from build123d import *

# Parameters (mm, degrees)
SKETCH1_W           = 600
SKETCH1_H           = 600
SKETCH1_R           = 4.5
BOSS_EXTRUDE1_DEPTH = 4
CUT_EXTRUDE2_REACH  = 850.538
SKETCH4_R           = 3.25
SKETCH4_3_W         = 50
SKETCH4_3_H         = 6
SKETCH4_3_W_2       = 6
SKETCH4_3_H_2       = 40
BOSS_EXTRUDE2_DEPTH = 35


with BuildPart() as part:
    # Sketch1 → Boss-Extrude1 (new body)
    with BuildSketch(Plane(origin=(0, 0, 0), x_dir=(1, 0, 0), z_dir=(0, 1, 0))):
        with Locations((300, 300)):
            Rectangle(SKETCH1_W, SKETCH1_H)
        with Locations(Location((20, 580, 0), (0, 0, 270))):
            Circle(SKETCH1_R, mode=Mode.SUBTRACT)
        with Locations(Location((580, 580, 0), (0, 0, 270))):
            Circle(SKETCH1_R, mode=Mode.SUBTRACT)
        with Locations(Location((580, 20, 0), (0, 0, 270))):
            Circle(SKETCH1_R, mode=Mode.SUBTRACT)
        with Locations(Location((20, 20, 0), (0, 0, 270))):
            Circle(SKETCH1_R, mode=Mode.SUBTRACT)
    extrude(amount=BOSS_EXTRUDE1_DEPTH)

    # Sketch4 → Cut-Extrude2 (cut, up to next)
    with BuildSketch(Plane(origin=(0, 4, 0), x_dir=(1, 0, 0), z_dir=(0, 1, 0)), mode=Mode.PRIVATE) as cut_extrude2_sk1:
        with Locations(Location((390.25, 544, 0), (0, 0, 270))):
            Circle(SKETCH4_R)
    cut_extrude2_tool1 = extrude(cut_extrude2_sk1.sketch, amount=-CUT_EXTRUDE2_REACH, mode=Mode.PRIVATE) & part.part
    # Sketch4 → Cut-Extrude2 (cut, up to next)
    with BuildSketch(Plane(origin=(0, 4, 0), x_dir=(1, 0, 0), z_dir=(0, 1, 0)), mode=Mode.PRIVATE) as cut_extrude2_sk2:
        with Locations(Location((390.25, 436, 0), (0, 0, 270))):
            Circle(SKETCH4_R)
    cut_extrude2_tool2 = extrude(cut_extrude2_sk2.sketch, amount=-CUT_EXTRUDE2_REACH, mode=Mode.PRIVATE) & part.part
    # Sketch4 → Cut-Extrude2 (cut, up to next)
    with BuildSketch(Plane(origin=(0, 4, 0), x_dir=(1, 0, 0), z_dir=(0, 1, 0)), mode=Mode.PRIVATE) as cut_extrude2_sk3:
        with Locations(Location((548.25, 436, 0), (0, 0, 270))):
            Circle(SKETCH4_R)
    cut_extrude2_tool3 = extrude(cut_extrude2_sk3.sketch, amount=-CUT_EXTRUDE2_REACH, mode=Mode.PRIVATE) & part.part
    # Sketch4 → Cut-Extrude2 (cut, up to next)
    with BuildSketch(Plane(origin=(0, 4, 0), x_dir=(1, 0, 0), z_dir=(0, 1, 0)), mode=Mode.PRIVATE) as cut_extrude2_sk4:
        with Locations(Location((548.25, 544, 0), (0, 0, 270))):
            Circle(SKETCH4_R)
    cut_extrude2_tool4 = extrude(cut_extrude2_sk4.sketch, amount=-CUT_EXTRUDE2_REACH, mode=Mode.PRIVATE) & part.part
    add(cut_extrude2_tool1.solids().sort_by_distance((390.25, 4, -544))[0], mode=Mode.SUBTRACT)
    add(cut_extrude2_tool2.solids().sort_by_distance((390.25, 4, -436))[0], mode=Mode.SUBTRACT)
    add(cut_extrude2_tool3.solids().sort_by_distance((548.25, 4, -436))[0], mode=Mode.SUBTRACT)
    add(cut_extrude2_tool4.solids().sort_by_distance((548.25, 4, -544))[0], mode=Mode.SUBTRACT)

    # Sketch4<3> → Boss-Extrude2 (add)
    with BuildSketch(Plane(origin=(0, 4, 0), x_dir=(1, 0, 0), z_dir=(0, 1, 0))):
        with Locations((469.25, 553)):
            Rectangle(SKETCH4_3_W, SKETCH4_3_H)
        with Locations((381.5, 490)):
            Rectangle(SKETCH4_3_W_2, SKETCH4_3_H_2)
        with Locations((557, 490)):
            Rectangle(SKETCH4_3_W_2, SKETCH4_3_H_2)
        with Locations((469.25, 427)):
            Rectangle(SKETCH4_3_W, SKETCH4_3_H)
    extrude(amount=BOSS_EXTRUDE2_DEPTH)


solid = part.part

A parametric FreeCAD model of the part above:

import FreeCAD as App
import Part
import Sketcher

V = App.Vector
Q = App.Units.Quantity

doc = App.newDocument("Part")
body = doc.addObject("PartDesign::Body", "Body")

sketch1 = body.newObject("Sketcher::SketchObject", "Sketch")
sketch1.AttachmentSupport = (doc.getObject("XZ_Plane"), [""])
sketch1.MapMode = "FlatFace"
sketch1.addGeometry([
    Part.LineSegment(V(0, -600, 0), V(0, 0, 0)),
    Part.LineSegment(V(0, 0, 0), V(600, 0, 0)),
    Part.LineSegment(V(600, 0, 0), V(600, -600, 0)),
    Part.LineSegment(V(600, -600, 0), V(0, -600, 0)),
    Part.Circle(V(20, -20, 0), V(0, 0, 1), 4.5),
    Part.Circle(V(580, -20, 0), V(0, 0, 1), 4.5),
    Part.Circle(V(20, -580, 0), V(0, 0, 1), 4.5),
    Part.Circle(V(580, -580, 0), V(0, 0, 1), 4.5),
], False)
sketch1.addConstraint([
    Sketcher.Constraint("Coincident", 0, 2, 1, 1),
    Sketcher.Constraint("Coincident", 1, 2, 2, 1),
    Sketcher.Constraint("Coincident", 2, 2, 3, 1),
    Sketcher.Constraint("Coincident", 3, 2, 0, 1),
    Sketcher.Constraint("Vertical", 0),
    Sketcher.Constraint("Horizontal", 1),
    Sketcher.Constraint("Vertical", 2),
    Sketcher.Constraint("Horizontal", 3),
    Sketcher.Constraint("Coincident", 0, 2, -1, 1),
    Sketcher.Constraint("Equal", 4, 5),
    Sketcher.Constraint("Equal", 5, 6),
    Sketcher.Constraint("Equal", 6, 7),
    Sketcher.Constraint("Horizontal", 4, 3, 5, 3),
    Sketcher.Constraint("Horizontal", 6, 3, 7, 3),
    Sketcher.Constraint("Vertical", 4, 3, 6, 3),
    Sketcher.Constraint("Vertical", 5, 3, 7, 3),
    Sketcher.Constraint("Equal", 3, 0),
    Sketcher.Constraint("Diameter", 4, Q("9 mm")),
    Sketcher.Constraint("DistanceX", 1, 1, 1, 2, Q("600 mm")),
    Sketcher.Constraint("DistanceX", -1, 1, 4, 3, Q("20 mm")),
    Sketcher.Constraint("DistanceY", 4, 3, -1, 1, Q("20 mm")),
    Sketcher.Constraint("DistanceX", -1, 1, 5, 3, Q("580 mm")),
    Sketcher.Constraint("DistanceY", 6, 3, -1, 1, Q("580 mm")),
])
pad1 = body.newObject("PartDesign::Pad", "Pad")
pad1.Profile = sketch1
pad1.Length = 4
pad1.Reversed = True

sketch2 = body.newObject("Sketcher::SketchObject", "Sketch001")
sketch2.AttachmentSupport = (doc.getObject("XZ_Plane"), [""])
sketch2.MapMode = "FlatFace"
sketch2.AttachmentOffset = App.Placement(V(0, 0, -4), App.Rotation())
sketch2.addGeometry(Part.Circle(V(390.25, -544, 0), V(0, 0, 1), 3.25), False)
sketch2.addConstraint([
    Sketcher.Constraint("Diameter", 0, Q("6.5 mm")),
    Sketcher.Constraint("DistanceY", 0, 3, -1, 1, Q("544 mm")),
    Sketcher.Constraint("DistanceX", -1, 1, 0, 3, Q("390.25 mm")),
])
pocket1 = body.newObject("PartDesign::Pocket", "Pocket")
pocket1.Profile = sketch2
pocket1.Type = "UpToFirst"
pocket1.Reversed = True

sketch3 = body.newObject("Sketcher::SketchObject", "Sketch002")
sketch3.AttachmentSupport = (doc.getObject("XZ_Plane"), [""])
sketch3.MapMode = "FlatFace"
sketch3.AttachmentOffset = App.Placement(V(0, 0, -4), App.Rotation())
sketch3.addGeometry(Part.Circle(V(390.25, -436, 0), V(0, 0, 1), 3.25), False)
sketch3.addConstraint([
    Sketcher.Constraint("Diameter", 0, Q("6.5 mm")),
    Sketcher.Constraint("DistanceY", 0, 3, -1, 1, Q("436 mm")),
    Sketcher.Constraint("DistanceX", -1, 1, 0, 3, Q("390.25 mm")),
])
pocket2 = body.newObject("PartDesign::Pocket", "Pocket001")
pocket2.Profile = sketch3
pocket2.Type = "UpToFirst"
pocket2.Reversed = True

sketch4 = body.newObject("Sketcher::SketchObject", "Sketch003")
sketch4.AttachmentSupport = (doc.getObject("XZ_Plane"), [""])
sketch4.MapMode = "FlatFace"
sketch4.AttachmentOffset = App.Placement(V(0, 0, -4), App.Rotation())
sketch4.addGeometry(Part.Circle(V(548.25, -436, 0), V(0, 0, 1), 3.25), False)
sketch4.addConstraint([
    Sketcher.Constraint("Diameter", 0, Q("6.5 mm")),
    Sketcher.Constraint("DistanceY", 0, 3, -1, 1, Q("436 mm")),
    Sketcher.Constraint("DistanceX", -1, 1, 0, 3, Q("548.25 mm")),
])
pocket3 = body.newObject("PartDesign::Pocket", "Pocket002")
pocket3.Profile = sketch4
pocket3.Type = "UpToFirst"
pocket3.Reversed = True

sketch5 = body.newObject("Sketcher::SketchObject", "Sketch004")
sketch5.AttachmentSupport = (doc.getObject("XZ_Plane"), [""])
sketch5.MapMode = "FlatFace"
sketch5.AttachmentOffset = App.Placement(V(0, 0, -4), App.Rotation())
sketch5.addGeometry(Part.Circle(V(548.25, -544, 0), V(0, 0, 1), 3.25), False)
sketch5.addConstraint([
    Sketcher.Constraint("Diameter", 0, Q("6.5 mm")),
    Sketcher.Constraint("DistanceY", 0, 3, -1, 1, Q("544 mm")),
    Sketcher.Constraint("DistanceX", -1, 1, 0, 3, Q("548.25 mm")),
])
pocket4 = body.newObject("PartDesign::Pocket", "Pocket003")
pocket4.Profile = sketch5
pocket4.Type = "UpToFirst"
pocket4.Reversed = True

sketch6 = body.newObject("Sketcher::SketchObject", "Sketch005")
sketch6.AttachmentSupport = (doc.getObject("XZ_Plane"), [""])
sketch6.MapMode = "FlatFace"
sketch6.AttachmentOffset = App.Placement(V(0, 0, -4), App.Rotation())
sketch6.addGeometry([
    Part.LineSegment(V(444.25, -556, 0), V(444.25, -550, 0)),
    Part.LineSegment(V(444.25, -550, 0), V(494.25, -550, 0)),
    Part.LineSegment(V(494.25, -550, 0), V(494.25, -556, 0)),
    Part.LineSegment(V(494.25, -556, 0), V(444.25, -556, 0)),
    Part.LineSegment(V(378.5, -510, 0), V(378.5, -470, 0)),
    Part.LineSegment(V(378.5, -470, 0), V(384.5, -470, 0)),
    Part.LineSegment(V(384.5, -470, 0), V(384.5, -510, 0)),
    Part.LineSegment(V(384.5, -510, 0), V(378.5, -510, 0)),
    Part.LineSegment(V(554, -510, 0), V(554, -470, 0)),
    Part.LineSegment(V(554, -470, 0), V(560, -470, 0)),
    Part.LineSegment(V(560, -470, 0), V(560, -510, 0)),
    Part.LineSegment(V(560, -510, 0), V(554, -510, 0)),
    Part.LineSegment(V(444.25, -430, 0), V(444.25, -424, 0)),
    Part.LineSegment(V(444.25, -424, 0), V(494.25, -424, 0)),
    Part.LineSegment(V(494.25, -424, 0), V(494.25, -430, 0)),
    Part.LineSegment(V(494.25, -430, 0), V(444.25, -430, 0)),
], False)
sketch6.addConstraint([
    Sketcher.Constraint("Coincident", 0, 2, 1, 1),
    Sketcher.Constraint("Coincident", 1, 2, 2, 1),
    Sketcher.Constraint("Coincident", 2, 2, 3, 1),
    Sketcher.Constraint("Coincident", 3, 2, 0, 1),
    Sketcher.Constraint("Coincident", 4, 2, 5, 1),
    Sketcher.Constraint("Coincident", 5, 2, 6, 1),
    Sketcher.Constraint("Coincident", 6, 2, 7, 1),
    Sketcher.Constraint("Coincident", 7, 2, 4, 1),
    Sketcher.Constraint("Coincident", 8, 2, 9, 1),
    Sketcher.Constraint("Coincident", 9, 2, 10, 1),
    Sketcher.Constraint("Coincident", 10, 2, 11, 1),
    Sketcher.Constraint("Coincident", 11, 2, 8, 1),
    Sketcher.Constraint("Coincident", 12, 2, 13, 1),
    Sketcher.Constraint("Coincident", 13, 2, 14, 1),
    Sketcher.Constraint("Coincident", 14, 2, 15, 1),
    Sketcher.Constraint("Coincident", 15, 2, 12, 1),
    Sketcher.Constraint("Vertical", 0),
    Sketcher.Constraint("Horizontal", 1),
    Sketcher.Constraint("Vertical", 2),
    Sketcher.Constraint("Horizontal", 3),
    Sketcher.Constraint("Vertical", 4),
    Sketcher.Constraint("Horizontal", 5),
    Sketcher.Constraint("Vertical", 6),
    Sketcher.Constraint("Horizontal", 7),
    Sketcher.Constraint("Vertical", 8),
    Sketcher.Constraint("Horizontal", 9),
    Sketcher.Constraint("Vertical", 10),
    Sketcher.Constraint("Horizontal", 11),
    Sketcher.Constraint("Vertical", 12),
    Sketcher.Constraint("Horizontal", 13),
    Sketcher.Constraint("Vertical", 14),
    Sketcher.Constraint("Horizontal", 15),
    Sketcher.Constraint("Horizontal", 5, 2, 8, 2),
    Sketcher.Constraint("Horizontal", 7, 2, 10, 2),
    Sketcher.Constraint("Vertical", 3, 2, 12, 2),
    Sketcher.Constraint("Vertical", 2, 2, 13, 2),
    Sketcher.Constraint("Equal", 7, 9),
    Sketcher.Constraint("Equal", 11, 0),
    Sketcher.Constraint("Equal", 2, 12),
    Sketcher.Constraint("DistanceX", 1, 1, 1, 2, Q("50 mm")),
    Sketcher.Constraint("DistanceX", 5, 1, 5, 2, Q("6 mm")),
    Sketcher.Constraint("DistanceY", 4, 1, 4, 2, Q("40 mm")),
    Sketcher.Constraint("DistanceY", 0, 2, -1, 1, Q("550 mm")),
    Sketcher.Constraint("DistanceY", 4, 2, -1, 1, Q("470 mm")),
    Sketcher.Constraint("DistanceX", -1, 1, 8, 2, Q("554 mm")),
    Sketcher.Constraint("DistanceY", 12, 2, -1, 1, Q("424 mm")),
    Sketcher.Constraint("DistanceX", -1, 1, 4, 2, Q("378.5 mm")),
    Sketcher.Constraint("DistanceX", -1, 1, 0, 2, Q("444.25 mm")),
])
pad2 = body.newObject("PartDesign::Pad", "Pad001")
pad2.Profile = sketch6
pad2.Length = 35
pad2.Reversed = True

doc.recompute()
